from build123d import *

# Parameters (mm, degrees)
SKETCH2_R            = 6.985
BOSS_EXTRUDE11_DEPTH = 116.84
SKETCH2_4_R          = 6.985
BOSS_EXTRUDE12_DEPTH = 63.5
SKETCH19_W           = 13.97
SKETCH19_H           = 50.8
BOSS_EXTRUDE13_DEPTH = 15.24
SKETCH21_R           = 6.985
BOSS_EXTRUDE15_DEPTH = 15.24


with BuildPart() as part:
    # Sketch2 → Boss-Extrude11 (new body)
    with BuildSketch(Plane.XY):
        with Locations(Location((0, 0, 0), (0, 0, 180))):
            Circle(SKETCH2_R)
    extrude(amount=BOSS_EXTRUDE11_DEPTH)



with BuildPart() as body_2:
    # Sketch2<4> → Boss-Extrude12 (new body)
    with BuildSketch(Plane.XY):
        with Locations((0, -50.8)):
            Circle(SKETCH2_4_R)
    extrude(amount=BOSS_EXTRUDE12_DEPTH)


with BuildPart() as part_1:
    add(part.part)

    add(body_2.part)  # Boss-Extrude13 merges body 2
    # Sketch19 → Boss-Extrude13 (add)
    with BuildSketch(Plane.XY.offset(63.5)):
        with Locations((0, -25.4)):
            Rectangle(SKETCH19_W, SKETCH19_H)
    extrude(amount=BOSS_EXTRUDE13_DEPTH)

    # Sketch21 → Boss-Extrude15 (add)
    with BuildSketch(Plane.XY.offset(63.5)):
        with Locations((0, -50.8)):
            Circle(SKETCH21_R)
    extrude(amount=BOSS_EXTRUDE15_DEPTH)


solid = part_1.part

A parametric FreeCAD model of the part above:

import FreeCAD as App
import Part
import Sketcher
from FreeCAD import Vector
Q = App.Units.Quantity


def add_polygon(sketch, points):
    """Adds a closed chain of lines whose ends are joined by coincident constraints."""
    first, n = sketch.GeometryCount, len(points)
    for a, b in zip(points, points[1:] + points[:1]):
        sketch.addGeometry(Part.LineSegment(App.Vector(*a, 0), App.Vector(*b, 0)), False)
    for i in range(n):
        sketch.addConstraint(Sketcher.Constraint("Coincident", first + i, 2, first + (i + 1) % n, 1))

doc = App.newDocument("Part")
body = doc.addObject("PartDesign::Body", "Body")

sketch1 = body.newObject("Sketcher::SketchObject", "Sketch")
sketch1.AttachmentSupport = (doc.getObject("XY_Plane"), [""])
sketch1.MapMode = "FlatFace"
sketch1.addGeometry(Part.Circle(Vector(0, 0, 0), Vector(0, 0, 1), 7), False)
sketch1.addConstraint([
    Sketcher.Constraint("Coincident", 0, 3, -1, 1),
    Sketcher.Constraint("Diameter", 0, Q("0.55 in")),
])
pad1 = body.newObject("PartDesign::Pad", "Pad")
pad1.Profile = sketch1
pad1.Length = Q("4.6 in")
body2 = doc.addObject("PartDesign::Body", "Body001")

sketch2 = body2.newObject("Sketcher::SketchObject", "Sketch001")
sketch2.AttachmentSupport = (doc.getObject("XY_Plane001"), [""])
sketch2.MapMode = "FlatFace"
sketch2.addGeometry(Part.Circle(Vector(0, -51, 0), Vector(0, 0, 1), 7), False)
sketch2.addConstraint([
    Sketcher.Constraint("PointOnObject", 0, 3, -2),
    Sketcher.Constraint("Diameter", 0, Q("0.55 in")),
    Sketcher.Constraint("DistanceY", 0, 3, -1, 1, Q("2 in")),
])
pad2 = body2.newObject("PartDesign::Pad", "Pad001")
pad2.Profile = sketch2
pad2.Length = Q("2.5 in")
body.AllowCompound = True
doc.recompute()

boolean = body.newObject("PartDesign::Boolean", "Boolean")
boolean.Type = "Fuse"
boolean.addObjects([body2])

sketch3 = body.newObject("Sketcher::SketchObject", "Sketch002")
sketch3.AttachmentSupport = (doc.getObject("XY_Plane"), [""])
sketch3.MapMode = "FlatFace"
sketch3.AttachmentOffset = App.Placement(Vector(0, 0, 2.5 * 25.4), App.Rotation())
add_polygon(sketch3, [(-7, 0), (-7, -51), (7, -51), (7, 0)])
sketch3.addConstraint([
    Sketcher.Constraint("Vertical", 0),
    Sketcher.Constraint("Horizontal", 1),
    Sketcher.Constraint("Vertical", 2),
    Sketcher.Constraint("Horizontal", 3),
    Sketcher.Constraint("Symmetric", 2, 2, 3, 2, -1, 1),
    Sketcher.Constraint("DistanceY", 0, 2, 0, 1, Q("2 in")),
    Sketcher.Constraint("DistanceX", 1, 1, 1, 2, Q("0.55 in")),
])
pad3 = body.newObject("PartDesign::Pad", "Pad002")
pad3.Profile = sketch3
pad3.Length = Q("0.6 in")

sketch4 = body.newObject("Sketcher::SketchObject", "Sketch003")
sketch4.AttachmentSupport = (doc.getObject("XY_Plane"), [""])
sketch4.MapMode = "FlatFace"
sketch4.AttachmentOffset = App.Placement(Vector(0, 0, 2.5 * 25.4), App.Rotation())
sketch4.addGeometry(Part.Circle(Vector(0, -51, 0), Vector(0, 0, 1), 7), False)
sketch4.addConstraint([
    Sketcher.Constraint("PointOnObject", 0, 3, -2),
    Sketcher.Constraint("Diameter", 0, Q("0.55 in")),
    Sketcher.Constraint("DistanceY", 0, 3, -1, 1, Q("2 in")),
])
pad4 = body.newObject("PartDesign::Pad", "Pad003")
pad4.Profile = sketch4
pad4.Length = Q("0.6 in")

doc.recompute()
